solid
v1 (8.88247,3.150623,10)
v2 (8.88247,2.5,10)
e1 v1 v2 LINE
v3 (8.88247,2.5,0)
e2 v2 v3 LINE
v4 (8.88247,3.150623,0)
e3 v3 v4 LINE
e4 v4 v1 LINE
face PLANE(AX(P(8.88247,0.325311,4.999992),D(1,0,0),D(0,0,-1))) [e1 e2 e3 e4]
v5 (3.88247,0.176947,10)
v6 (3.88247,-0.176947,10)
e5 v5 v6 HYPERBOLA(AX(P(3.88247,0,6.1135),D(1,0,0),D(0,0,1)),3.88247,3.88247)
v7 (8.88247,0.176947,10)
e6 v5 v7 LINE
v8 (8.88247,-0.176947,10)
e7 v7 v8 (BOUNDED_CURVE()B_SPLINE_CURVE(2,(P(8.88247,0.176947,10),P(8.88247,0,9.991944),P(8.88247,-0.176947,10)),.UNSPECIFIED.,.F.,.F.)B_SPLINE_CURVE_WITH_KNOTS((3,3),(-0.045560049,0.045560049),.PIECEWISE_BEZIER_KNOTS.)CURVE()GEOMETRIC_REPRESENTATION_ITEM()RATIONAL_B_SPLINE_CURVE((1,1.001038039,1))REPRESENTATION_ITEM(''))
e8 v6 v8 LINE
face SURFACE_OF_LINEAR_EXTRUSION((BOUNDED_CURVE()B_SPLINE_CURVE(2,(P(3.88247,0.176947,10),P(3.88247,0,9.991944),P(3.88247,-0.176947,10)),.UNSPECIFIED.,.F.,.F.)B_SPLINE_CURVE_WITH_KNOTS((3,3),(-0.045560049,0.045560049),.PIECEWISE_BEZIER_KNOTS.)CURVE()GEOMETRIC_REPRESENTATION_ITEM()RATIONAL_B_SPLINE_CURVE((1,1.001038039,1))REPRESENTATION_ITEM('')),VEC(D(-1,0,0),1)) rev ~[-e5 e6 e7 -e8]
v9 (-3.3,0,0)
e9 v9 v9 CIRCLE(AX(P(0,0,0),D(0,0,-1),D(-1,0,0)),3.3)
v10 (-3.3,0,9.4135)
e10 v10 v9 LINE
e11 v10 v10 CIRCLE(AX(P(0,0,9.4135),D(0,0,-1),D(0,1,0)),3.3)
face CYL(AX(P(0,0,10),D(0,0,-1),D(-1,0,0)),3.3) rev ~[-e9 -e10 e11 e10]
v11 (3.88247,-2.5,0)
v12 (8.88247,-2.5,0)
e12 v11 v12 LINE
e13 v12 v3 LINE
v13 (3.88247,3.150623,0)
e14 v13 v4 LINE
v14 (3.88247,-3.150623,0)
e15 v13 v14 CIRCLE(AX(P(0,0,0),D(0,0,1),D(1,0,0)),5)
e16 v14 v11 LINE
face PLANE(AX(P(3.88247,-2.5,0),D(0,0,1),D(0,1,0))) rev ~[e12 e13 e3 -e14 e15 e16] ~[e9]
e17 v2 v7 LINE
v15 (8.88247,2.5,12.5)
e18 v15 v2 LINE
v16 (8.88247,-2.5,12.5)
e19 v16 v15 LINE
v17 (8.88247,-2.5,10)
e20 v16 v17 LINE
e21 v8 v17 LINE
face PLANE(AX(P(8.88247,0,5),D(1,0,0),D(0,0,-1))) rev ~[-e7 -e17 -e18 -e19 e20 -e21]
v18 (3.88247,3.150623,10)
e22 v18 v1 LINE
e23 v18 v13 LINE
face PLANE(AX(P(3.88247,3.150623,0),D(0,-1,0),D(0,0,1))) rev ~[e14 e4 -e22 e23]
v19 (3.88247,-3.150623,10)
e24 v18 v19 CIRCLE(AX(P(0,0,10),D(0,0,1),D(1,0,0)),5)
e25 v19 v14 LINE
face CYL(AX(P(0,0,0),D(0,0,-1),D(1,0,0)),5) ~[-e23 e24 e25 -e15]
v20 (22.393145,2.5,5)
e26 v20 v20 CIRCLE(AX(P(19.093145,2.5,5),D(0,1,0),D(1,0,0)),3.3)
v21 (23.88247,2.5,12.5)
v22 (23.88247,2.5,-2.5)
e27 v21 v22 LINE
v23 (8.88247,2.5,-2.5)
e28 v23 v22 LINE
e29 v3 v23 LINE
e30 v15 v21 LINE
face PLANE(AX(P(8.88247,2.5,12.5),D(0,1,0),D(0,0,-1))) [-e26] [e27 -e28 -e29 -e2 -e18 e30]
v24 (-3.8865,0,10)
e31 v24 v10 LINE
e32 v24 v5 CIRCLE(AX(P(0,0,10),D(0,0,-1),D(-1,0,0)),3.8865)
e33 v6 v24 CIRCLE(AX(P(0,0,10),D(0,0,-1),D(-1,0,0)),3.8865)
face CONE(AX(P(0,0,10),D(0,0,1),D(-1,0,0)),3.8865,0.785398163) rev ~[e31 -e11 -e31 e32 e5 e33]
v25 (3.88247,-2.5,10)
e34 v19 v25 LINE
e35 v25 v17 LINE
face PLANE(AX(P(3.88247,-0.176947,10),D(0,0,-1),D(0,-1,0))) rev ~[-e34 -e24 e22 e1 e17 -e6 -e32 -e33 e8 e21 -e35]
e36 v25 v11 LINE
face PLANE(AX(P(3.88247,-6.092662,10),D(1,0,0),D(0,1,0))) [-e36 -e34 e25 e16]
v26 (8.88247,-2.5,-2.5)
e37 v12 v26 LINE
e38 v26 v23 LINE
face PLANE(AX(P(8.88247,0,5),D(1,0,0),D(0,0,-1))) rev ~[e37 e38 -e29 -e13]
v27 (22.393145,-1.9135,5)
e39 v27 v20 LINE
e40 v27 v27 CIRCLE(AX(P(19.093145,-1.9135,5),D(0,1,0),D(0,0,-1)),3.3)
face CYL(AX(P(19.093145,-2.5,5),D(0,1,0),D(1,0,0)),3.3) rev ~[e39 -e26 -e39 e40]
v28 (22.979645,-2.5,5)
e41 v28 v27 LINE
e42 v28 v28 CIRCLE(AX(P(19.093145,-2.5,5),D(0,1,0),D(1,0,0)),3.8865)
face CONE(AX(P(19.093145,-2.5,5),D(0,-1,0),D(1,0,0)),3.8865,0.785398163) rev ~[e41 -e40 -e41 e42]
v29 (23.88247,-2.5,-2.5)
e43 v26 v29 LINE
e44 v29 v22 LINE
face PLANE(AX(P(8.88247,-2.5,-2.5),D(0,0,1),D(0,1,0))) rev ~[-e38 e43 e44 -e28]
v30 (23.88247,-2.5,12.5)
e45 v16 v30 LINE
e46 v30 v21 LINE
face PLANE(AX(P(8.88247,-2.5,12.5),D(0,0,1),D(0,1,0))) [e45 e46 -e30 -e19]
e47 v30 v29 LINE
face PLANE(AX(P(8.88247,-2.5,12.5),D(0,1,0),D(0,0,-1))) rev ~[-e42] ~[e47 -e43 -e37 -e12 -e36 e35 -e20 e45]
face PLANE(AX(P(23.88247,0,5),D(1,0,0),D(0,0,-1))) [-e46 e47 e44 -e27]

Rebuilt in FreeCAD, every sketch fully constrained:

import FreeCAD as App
import Part
import Sketcher

doc = App.newDocument("Part")
body = doc.addObject("PartDesign::Body", "Body")

sketch1 = doc.addObject("Sketcher::SketchObject", "Sketch")
body.addObject(sketch1)
sketch1.AttachmentSupport = (doc.XY_Plane, [""])
sketch1.MapMode = "FlatFace"
sketch1.addGeometry(Part.Circle(App.Vector(0, 0, 0), App.Vector(0, 0, 1), 5), False)
sketch1.addConstraint(Sketcher.Constraint("Coincident", 0, 3, -1, 1))
sketch1.addConstraint(Sketcher.Constraint("Diameter", 0, 10.0))
pad1 = doc.addObject("PartDesign::Pad", "Pad")
body.addObject(pad1)
pad1.Profile = sketch1
pad1.Length = 10

sketch2 = doc.addObject("Sketcher::SketchObject", "Sketch001")
body.addObject(sketch2)
sketch2.AttachmentSupport = (doc.XY_Plane, [""])
sketch2.MapMode = "FlatFace"
sketch2.AttachmentOffset = App.Placement(App.Vector(0, 0, 10), App.Rotation())
sketch2.addGeometry(Part.Circle(App.Vector(0, 0, 0), App.Vector(0, 0, 1), 3.3), False)
sketch2.addConstraint(Sketcher.Constraint("Coincident", 0, 3, -1, 1))
sketch2.addConstraint(Sketcher.Constraint("Diameter", 0, 6.6))
doc.recompute()
hole = doc.addObject("PartDesign::Hole", "Hole")
body.addObject(hole)
hole.Profile = sketch2
hole.ThreadType = "None"
hole.Diameter = 6.6
hole.DepthType = "Dimension"
hole.Depth = 50
hole.DrillPoint = "Angled"
hole.DrillPointAngle = 118
hole.HoleCutType = "Countersink"
hole.HoleCutDiameter = 7.773
hole.HoleCutCountersinkAngle = 90

sketch3 = doc.addObject("Sketcher::SketchObject", "Sketch002")
body.addObject(sketch3)
sketch3.AttachmentSupport = (doc.XY_Plane, [""])
sketch3.MapMode = "FlatFace"
sketch3.AttachmentOffset = App.Placement(App.Vector(0, 0, 10), App.Rotation())
sketch3.addGeometry(Part.LineSegment(App.Vector(3.88247, 3.150623, 0), App.Vector(3.88247, -6.092662, 0)), False)
sketch3.addGeometry(Part.LineSegment(App.Vector(3.88247, -6.092662, 0), App.Vector(5.674957, -6.092662, 0)), False)
sketch3.addGeometry(Part.LineSegment(App.Vector(5.674957, -6.092662, 0), App.Vector(5.674957, 3.150623, 0)), False)
sketch3.addGeometry(Part.LineSegment(App.Vector(5.674957, 3.150623, 0), App.Vector(3.88247, 3.150623, 0)), False)
sketch3.addConstraint(Sketcher.Constraint("Coincident", 0, 2, 1, 1))
sketch3.addConstraint(Sketcher.Constraint("Coincident", 1, 2, 2, 1))
sketch3.addConstraint(Sketcher.Constraint("Coincident", 2, 2, 3, 1))
sketch3.addConstraint(Sketcher.Constraint("Coincident", 3, 2, 0, 1))
sketch3.addConstraint(Sketcher.Constraint("Vertical", 0))
sketch3.addConstraint(Sketcher.Constraint("Horizontal", 1))
sketch3.addConstraint(Sketcher.Constraint("Vertical", 2))
sketch3.addConstraint(Sketcher.Constraint("Horizontal", 3))
sketch3.addConstraint(Sketcher.Constraint("DistanceX", 1, 1, 1, 2, 1.792487))
sketch3.addConstraint(Sketcher.Constraint("DistanceY", 0, 2, 0, 1, 9.243285))
sketch3.addConstraint(Sketcher.Constraint("DistanceX", -1, 1, 0, 2, 3.88247))
sketch3.addConstraint(Sketcher.Constraint("DistanceY", 0, 2, -1, 1, 6.092662))
pocket1 = doc.addObject("PartDesign::Pocket", "Pocket")
body.addObject(pocket1)
pocket1.Profile = sketch3
pocket1.Length = 10

sketch4 = doc.addObject("Sketcher::SketchObject", "Sketch003")
body.addObject(sketch4)
sketch4.AttachmentSupport = (doc.YZ_Plane, [""])
sketch4.MapMode = "FlatFace"
sketch4.AttachmentOffset = App.Placement(App.Vector(0, 0, 3.88247), App.Rotation())
sketch4.addGeometry(Part.LineSegment(App.Vector(-0.176947, 10, 0), App.Vector(-2.5, 10, 0)), False)
sketch4.addGeometry(Part.LineSegment(App.Vector(-2.5, 10, 0), App.Vector(-2.5, 0, 0)), False)
sketch4.addGeometry(Part.LineSegment(App.Vector(-2.5, 0, 0), App.Vector(3.150623, 0, 0)), False)
sketch4.addGeometry(Part.LineSegment(App.Vector(3.150623, 0, 0), App.Vector(3.150623, 10, 0)), False)
sketch4.addGeometry(Part.LineSegment(App.Vector(3.150623, 10, 0), App.Vector(0.176947, 10, 0)), False)
sketch4.addGeometry(Part.BSplineCurve([App.Vector(0.176947, 10, 0), App.Vector(0, 9.991944, 0), App.Vector(-0.176947, 10, 0)], [3, 3], [-0.045560049, 0.045560049], False, 2, [1, 1.001038039, 1], False), False)
sketch4.addConstraint(Sketcher.Constraint("Block", 5))
sketch4.addConstraint(Sketcher.Constraint("Coincident", 0, 2, 1, 1))
sketch4.addConstraint(Sketcher.Constraint("Coincident", 1, 2, 2, 1))
sketch4.addConstraint(Sketcher.Constraint("Coincident", 2, 2, 3, 1))
sketch4.addConstraint(Sketcher.Constraint("Coincident", 3, 2, 4, 1))
sketch4.addConstraint(Sketcher.Constraint("Coincident", 4, 2, 5, 1))
sketch4.addConstraint(Sketcher.Constraint("Coincident", 5, 2, 0, 1))
sketch4.addConstraint(Sketcher.Constraint("Horizontal", 0))
sketch4.addConstraint(Sketcher.Constraint("Vertical", 1))
sketch4.addConstraint(Sketcher.Constraint("Horizontal", 2))
sketch4.addConstraint(Sketcher.Constraint("Vertical", 3))
sketch4.addConstraint(Sketcher.Constraint("Horizontal", 4))
sketch4.addConstraint(Sketcher.Constraint("PointOnObject", 1, 2, -1))
sketch4.addConstraint(Sketcher.Constraint("DistanceX", 0, 2, -1, 1, 2.5))
sketch4.addConstraint(Sketcher.Constraint("DistanceX", 2, 1, 2, 2, 5.650623))
pad2 = doc.addObject("PartDesign::Pad", "Pad001")
body.addObject(pad2)
pad2.Profile = sketch4
pad2.Length = 5

sketch5 = doc.addObject("Sketcher::SketchObject", "Sketch004")
body.addObject(sketch5)
sketch5.AttachmentSupport = (doc.YZ_Plane, [""])
sketch5.MapMode = "FlatFace"
sketch5.AttachmentOffset = App.Placement(App.Vector(0, 0, 8.88247), App.Rotation())
sketch5.addGeometry(Part.LineSegment(App.Vector(2.5, 12.5, 0), App.Vector(-2.5, 12.5, 0)), False)
sketch5.addGeometry(Part.LineSegment(App.Vector(-2.5, 12.5, 0), App.Vector(-2.5, -2.5, 0)), False)
sketch5.addGeometry(Part.LineSegment(App.Vector(-2.5, -2.5, 0), App.Vector(2.5, -2.5, 0)), False)
sketch5.addGeometry(Part.LineSegment(App.Vector(2.5, -2.5, 0), App.Vector(2.5, 12.5, 0)), False)
sketch5.addConstraint(Sketcher.Constraint("Coincident", 0, 2, 1, 1))
sketch5.addConstraint(Sketcher.Constraint("Coincident", 1, 2, 2, 1))
sketch5.addConstraint(Sketcher.Constraint("Coincident", 2, 2, 3, 1))
sketch5.addConstraint(Sketcher.Constraint("Coincident", 3, 2, 0, 1))
sketch5.addConstraint(Sketcher.Constraint("Horizontal", 0))
sketch5.addConstraint(Sketcher.Constraint("Vertical", 1))
sketch5.addConstraint(Sketcher.Constraint("Horizontal", 2))
sketch5.addConstraint(Sketcher.Constraint("Vertical", 3))
sketch5.addConstraint(Sketcher.Constraint("DistanceX", 0, 2, 0, 1, 5.0))
sketch5.addConstraint(Sketcher.Constraint("DistanceY", 1, 2, 1, 1, 15.0))
sketch5.addConstraint(Sketcher.Constraint("DistanceX", 0, 2, -1, 1, 2.5))
sketch5.addConstraint(Sketcher.Constraint("DistanceY", -1, 1, 0, 2, 12.5))
pad3 = doc.addObject("PartDesign::Pad", "Pad002")
body.addObject(pad3)
pad3.Profile = sketch5
pad3.Length = 15

sketch6 = doc.addObject("Sketcher::SketchObject", "Sketch005")
body.addObject(sketch6)
sketch6.AttachmentSupport = (doc.XZ_Plane, [""])
sketch6.MapMode = "FlatFace"
sketch6.AttachmentOffset = App.Placement(App.Vector(0, 0, 2.5), App.Rotation())
sketch6.addGeometry(Part.Circle(App.Vector(19.093145, 5, 0), App.Vector(0, 0, 1), 3.3), False)
sketch6.addConstraint(Sketcher.Constraint("Diameter", 0, 6.6))
sketch6.addConstraint(Sketcher.Constraint("DistanceY", -1, 1, 0, 3, 5.0))
sketch6.addConstraint(Sketcher.Constraint("DistanceX", -1, 1, 0, 3, 19.093145))
doc.recompute()
hole2 = doc.addObject("PartDesign::Hole", "Hole001")
body.addObject(hole2)
hole2.Profile = sketch6
hole2.ThreadType = "None"
hole2.Diameter = 6.6
hole2.DepthType = "Dimension"
hole2.Depth = 50
hole2.DrillPoint = "Angled"
hole2.DrillPointAngle = 118
hole2.HoleCutType = "Countersink"
hole2.HoleCutDiameter = 7.773
hole2.HoleCutCountersinkAngle = 90

doc.recompute()
